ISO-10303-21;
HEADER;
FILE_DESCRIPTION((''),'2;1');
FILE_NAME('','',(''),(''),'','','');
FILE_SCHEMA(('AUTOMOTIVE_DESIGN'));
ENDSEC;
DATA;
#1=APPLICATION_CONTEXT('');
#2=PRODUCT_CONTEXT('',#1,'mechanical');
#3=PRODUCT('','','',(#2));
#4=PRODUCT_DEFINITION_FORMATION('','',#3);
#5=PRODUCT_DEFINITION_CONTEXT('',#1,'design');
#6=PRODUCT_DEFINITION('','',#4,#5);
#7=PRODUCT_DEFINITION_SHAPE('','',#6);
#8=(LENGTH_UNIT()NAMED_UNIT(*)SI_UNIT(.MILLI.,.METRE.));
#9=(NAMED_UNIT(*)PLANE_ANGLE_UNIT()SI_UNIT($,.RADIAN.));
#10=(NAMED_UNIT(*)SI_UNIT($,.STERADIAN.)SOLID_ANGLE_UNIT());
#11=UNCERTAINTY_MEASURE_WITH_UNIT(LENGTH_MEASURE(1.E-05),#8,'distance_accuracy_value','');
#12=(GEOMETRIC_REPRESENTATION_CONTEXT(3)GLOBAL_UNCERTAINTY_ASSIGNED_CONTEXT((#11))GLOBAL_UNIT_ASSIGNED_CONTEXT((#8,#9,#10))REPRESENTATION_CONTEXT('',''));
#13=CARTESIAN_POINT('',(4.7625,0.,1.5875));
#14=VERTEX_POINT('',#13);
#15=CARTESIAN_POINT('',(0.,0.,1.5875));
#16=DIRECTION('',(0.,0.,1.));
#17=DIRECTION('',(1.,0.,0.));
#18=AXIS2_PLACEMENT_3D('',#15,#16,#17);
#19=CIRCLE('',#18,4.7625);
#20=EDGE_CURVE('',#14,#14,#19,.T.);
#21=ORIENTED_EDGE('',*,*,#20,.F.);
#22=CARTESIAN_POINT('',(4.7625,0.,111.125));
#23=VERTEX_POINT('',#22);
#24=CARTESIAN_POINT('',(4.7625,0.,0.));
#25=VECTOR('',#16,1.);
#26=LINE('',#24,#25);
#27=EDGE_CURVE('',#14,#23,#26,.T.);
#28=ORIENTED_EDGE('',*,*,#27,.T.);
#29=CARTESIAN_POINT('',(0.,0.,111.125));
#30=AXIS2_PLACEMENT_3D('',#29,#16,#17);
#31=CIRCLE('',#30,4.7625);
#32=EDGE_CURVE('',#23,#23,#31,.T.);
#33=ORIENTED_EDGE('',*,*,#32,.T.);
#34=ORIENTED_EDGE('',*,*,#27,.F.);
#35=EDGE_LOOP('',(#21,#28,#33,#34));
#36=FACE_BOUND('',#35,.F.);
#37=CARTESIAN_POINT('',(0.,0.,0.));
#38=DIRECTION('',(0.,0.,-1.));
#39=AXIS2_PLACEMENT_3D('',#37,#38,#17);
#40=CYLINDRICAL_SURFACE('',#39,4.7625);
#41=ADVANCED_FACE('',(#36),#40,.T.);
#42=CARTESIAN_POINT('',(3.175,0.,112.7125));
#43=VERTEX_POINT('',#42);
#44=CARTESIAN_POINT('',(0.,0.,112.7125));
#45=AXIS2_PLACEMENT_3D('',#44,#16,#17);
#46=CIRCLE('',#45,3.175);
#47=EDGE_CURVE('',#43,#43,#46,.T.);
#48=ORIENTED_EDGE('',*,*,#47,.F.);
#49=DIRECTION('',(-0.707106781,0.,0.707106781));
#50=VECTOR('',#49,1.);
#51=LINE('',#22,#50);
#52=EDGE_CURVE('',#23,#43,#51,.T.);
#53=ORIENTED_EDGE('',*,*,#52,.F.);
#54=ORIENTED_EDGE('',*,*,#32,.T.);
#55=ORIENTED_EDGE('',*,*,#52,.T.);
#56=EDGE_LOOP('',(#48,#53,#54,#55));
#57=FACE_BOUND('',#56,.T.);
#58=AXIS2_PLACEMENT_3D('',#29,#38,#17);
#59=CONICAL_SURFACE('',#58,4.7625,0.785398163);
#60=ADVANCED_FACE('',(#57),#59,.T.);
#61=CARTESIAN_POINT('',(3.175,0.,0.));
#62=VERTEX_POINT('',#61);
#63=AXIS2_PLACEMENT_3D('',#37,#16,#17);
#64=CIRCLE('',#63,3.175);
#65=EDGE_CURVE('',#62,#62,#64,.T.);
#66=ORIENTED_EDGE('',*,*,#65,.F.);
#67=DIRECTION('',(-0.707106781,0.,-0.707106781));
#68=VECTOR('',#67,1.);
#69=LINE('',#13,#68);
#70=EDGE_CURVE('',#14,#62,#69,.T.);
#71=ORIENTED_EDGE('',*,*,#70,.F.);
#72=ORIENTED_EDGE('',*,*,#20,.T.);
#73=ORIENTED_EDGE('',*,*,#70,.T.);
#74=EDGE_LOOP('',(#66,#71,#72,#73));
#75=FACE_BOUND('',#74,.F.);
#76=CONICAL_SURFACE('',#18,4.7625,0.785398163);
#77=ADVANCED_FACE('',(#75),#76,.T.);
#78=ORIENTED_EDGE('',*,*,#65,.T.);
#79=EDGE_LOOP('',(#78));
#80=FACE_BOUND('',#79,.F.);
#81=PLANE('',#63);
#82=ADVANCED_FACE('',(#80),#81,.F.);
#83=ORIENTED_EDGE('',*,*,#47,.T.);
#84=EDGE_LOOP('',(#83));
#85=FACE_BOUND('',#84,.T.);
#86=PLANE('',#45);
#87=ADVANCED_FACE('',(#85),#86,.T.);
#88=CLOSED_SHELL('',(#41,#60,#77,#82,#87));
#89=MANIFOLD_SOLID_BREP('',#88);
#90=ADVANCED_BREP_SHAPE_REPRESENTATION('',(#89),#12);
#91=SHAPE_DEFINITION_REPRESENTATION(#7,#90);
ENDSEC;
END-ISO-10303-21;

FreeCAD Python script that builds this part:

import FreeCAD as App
import Part
import Sketcher
from FreeCAD import Vector
Q = App.Units.Quantity


def edges_at(feature, points):
    """Names of the edges that pass closest to the given points."""
    edges = feature.Shape.Edges
    near = lambda p: min(range(len(edges)), key=lambda i: edges[i].distToShape(Part.Vertex(*p))[0])
    return sorted({f"Edge{near(p) + 1}" for p in points})

doc = App.newDocument("Part")
body = doc.addObject("PartDesign::Body", "Body")

sketch1 = doc.addObject("Sketcher::SketchObject", "Sketch")
body.addObject(sketch1)
sketch1.AttachmentSupport = (doc.XY_Plane, [""])
sketch1.MapMode = "FlatFace"
sketch1.addGeometry(Part.Circle(Vector(0, 0, 0), Vector(0, 0, 1), 4.8), False)
sketch1.addConstraint([
    Sketcher.Constraint("Coincident", 0, 3, -1, 1),
    Sketcher.Constraint("Diameter", 0, Q("0.375 in")),
])
pad1 = doc.addObject("PartDesign::Pad", "Pad")
body.addObject(pad1)
pad1.Profile = sketch1
pad1.Length = Q("4.4375 in")
doc.recompute()

chamfer = doc.addObject("PartDesign::Chamfer", "Chamfer")
body.addObject(chamfer)
chamfer.Base = (pad1, edges_at(pad1, [(-4.763, 0, 0), (-4.763, 0, 112.713)]))
chamfer.Size = Q("0.0625 in")

doc.recompute()
